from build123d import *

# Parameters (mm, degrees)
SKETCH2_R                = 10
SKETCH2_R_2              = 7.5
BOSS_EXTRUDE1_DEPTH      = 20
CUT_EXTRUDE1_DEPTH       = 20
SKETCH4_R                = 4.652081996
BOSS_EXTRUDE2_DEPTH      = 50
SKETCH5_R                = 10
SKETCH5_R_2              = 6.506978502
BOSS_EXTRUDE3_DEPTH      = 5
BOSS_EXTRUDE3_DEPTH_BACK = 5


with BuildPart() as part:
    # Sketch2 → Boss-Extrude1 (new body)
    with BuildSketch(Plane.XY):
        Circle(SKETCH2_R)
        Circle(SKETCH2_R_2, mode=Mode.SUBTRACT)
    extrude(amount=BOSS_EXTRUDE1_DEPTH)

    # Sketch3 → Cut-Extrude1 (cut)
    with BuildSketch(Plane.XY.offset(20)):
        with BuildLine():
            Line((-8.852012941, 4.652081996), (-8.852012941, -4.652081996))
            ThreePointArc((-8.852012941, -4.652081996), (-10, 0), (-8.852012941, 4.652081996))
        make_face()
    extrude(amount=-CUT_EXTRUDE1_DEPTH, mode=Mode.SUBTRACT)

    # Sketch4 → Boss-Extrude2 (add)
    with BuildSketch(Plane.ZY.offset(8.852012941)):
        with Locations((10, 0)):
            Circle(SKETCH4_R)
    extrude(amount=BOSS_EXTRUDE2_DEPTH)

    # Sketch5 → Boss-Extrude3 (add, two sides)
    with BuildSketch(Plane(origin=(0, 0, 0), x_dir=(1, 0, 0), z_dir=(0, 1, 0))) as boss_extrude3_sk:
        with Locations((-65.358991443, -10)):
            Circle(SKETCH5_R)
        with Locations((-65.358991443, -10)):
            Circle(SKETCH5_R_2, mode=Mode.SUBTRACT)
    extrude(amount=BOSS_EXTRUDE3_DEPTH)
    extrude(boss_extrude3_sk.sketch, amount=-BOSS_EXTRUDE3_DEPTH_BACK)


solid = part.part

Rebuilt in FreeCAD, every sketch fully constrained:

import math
import FreeCAD as App
import Part
import Sketcher

V = App.Vector

doc = App.newDocument("Part")
body = doc.addObject("PartDesign::Body", "Body")

# Sketch on XY plane
sketch1 = doc.addObject("Sketcher::SketchObject", "Sketch")
body.addObject(sketch1)
sketch1.AttachmentSupport = (doc.XY_Plane, [""])
sketch1.MapMode = "FlatFace"
sketch1.addGeometry(Part.Circle(V(0, 0, 0), V(0, 0, 1), 10), False)
sketch1.addGeometry(Part.Circle(V(0, 0, 0), V(0, 0, 1), 8), False)
sketch1.addConstraint(Sketcher.Constraint("Coincident", 0, 3, -1, 1))
sketch1.addConstraint(Sketcher.Constraint("Coincident", 1, 3, -1, 1))
sketch1.addConstraint(Sketcher.Constraint("Diameter", 0, 20.0))
sketch1.addConstraint(Sketcher.Constraint("Diameter", 1, 15.0))
pad1 = doc.addObject("PartDesign::Pad", "Pad")
body.addObject(pad1)
pad1.Profile = sketch1
pad1.Length = 20

# Sketch on XY plane
sketch2 = doc.addObject("Sketcher::SketchObject", "Sketch001")
body.addObject(sketch2)
sketch2.AttachmentSupport = (doc.XY_Plane, [""])
sketch2.MapMode = "FlatFace"
sketch2.AttachmentOffset = App.Placement(V(0, 0, 20), App.Rotation())
sketch2.addGeometry(Part.LineSegment(V(-9, -5, 0), V(-9, 5, 0)), False)
sketch2.addGeometry(Part.ArcOfCircle(Part.Circle(V(0, 0, 0), V(0, 0, 1), 10), math.radians(152), math.radians(208)), False)
sketch2.addConstraint(Sketcher.Constraint("Coincident", 0, 1, 1, 2))
sketch2.addConstraint(Sketcher.Constraint("Coincident", 1, 1, 0, 2))
sketch2.addConstraint(Sketcher.Constraint("Vertical", 0))
sketch2.addConstraint(Sketcher.Constraint("Coincident", 1, 3, -1, 1))
sketch2.addConstraint(Sketcher.Constraint("Radius", 1, 10.0))
sketch2.addConstraint(Sketcher.Constraint("DistanceY", 0, 1, 0, 2, 9.304164))
pocket1 = doc.addObject("PartDesign::Pocket", "Pocket")
body.addObject(pocket1)
pocket1.Profile = sketch2
pocket1.Length = 20

# Sketch on YZ plane
sketch3 = doc.addObject("Sketcher::SketchObject", "Sketch002")
body.addObject(sketch3)
sketch3.AttachmentSupport = (doc.YZ_Plane, [""])
sketch3.MapMode = "FlatFace"
sketch3.AttachmentOffset = App.Placement(V(0, 0, -8.852013), App.Rotation())
sketch3.addGeometry(Part.Circle(V(0, 10, 0), V(0, 0, 1), 4.7), False)
sketch3.addConstraint(Sketcher.Constraint("PointOnObject", 0, 3, -2))
sketch3.addConstraint(Sketcher.Constraint("DistanceY", -1, 1, 0, 3, 10.0))
sketch3.addConstraint(Sketcher.Constraint("Diameter", 0, 9.304164))
pad2 = doc.addObject("PartDesign::Pad", "Pad001")
body.addObject(pad2)
pad2.Profile = sketch3
pad2.Length = 50
pad2.Reversed = True

# Sketch on XZ plane
sketch4 = doc.addObject("Sketcher::SketchObject", "Sketch003")
body.addObject(sketch4)
sketch4.AttachmentSupport = (doc.XZ_Plane, [""])
sketch4.MapMode = "FlatFace"
sketch4.addGeometry(Part.Circle(V(-65, 10, 0), V(0, 0, 1), 10), False)
sketch4.addGeometry(Part.Circle(V(-65, 10, 0), V(0, 0, 1), 7), False)
sketch4.addConstraint(Sketcher.Constraint("Coincident", 1, 3, 0, 3))
sketch4.addConstraint(Sketcher.Constraint("Diameter", 0, 20.0))
sketch4.addConstraint(Sketcher.Constraint("DistanceY", -1, 1, 0, 3, 10.0))
sketch4.addConstraint(Sketcher.Constraint("Diameter", 1, 13.013957))
sketch4.addConstraint(Sketcher.Constraint("DistanceX", 0, 3, -1, 1, 65.358991))
pad3 = doc.addObject("PartDesign::Pad", "Pad002")
body.addObject(pad3)
pad3.Profile = sketch4
pad3.Type = "TwoLengths"
pad3.Length = 5
pad3.Length2 = 5
pad3.Reversed = True

doc.recompute()
